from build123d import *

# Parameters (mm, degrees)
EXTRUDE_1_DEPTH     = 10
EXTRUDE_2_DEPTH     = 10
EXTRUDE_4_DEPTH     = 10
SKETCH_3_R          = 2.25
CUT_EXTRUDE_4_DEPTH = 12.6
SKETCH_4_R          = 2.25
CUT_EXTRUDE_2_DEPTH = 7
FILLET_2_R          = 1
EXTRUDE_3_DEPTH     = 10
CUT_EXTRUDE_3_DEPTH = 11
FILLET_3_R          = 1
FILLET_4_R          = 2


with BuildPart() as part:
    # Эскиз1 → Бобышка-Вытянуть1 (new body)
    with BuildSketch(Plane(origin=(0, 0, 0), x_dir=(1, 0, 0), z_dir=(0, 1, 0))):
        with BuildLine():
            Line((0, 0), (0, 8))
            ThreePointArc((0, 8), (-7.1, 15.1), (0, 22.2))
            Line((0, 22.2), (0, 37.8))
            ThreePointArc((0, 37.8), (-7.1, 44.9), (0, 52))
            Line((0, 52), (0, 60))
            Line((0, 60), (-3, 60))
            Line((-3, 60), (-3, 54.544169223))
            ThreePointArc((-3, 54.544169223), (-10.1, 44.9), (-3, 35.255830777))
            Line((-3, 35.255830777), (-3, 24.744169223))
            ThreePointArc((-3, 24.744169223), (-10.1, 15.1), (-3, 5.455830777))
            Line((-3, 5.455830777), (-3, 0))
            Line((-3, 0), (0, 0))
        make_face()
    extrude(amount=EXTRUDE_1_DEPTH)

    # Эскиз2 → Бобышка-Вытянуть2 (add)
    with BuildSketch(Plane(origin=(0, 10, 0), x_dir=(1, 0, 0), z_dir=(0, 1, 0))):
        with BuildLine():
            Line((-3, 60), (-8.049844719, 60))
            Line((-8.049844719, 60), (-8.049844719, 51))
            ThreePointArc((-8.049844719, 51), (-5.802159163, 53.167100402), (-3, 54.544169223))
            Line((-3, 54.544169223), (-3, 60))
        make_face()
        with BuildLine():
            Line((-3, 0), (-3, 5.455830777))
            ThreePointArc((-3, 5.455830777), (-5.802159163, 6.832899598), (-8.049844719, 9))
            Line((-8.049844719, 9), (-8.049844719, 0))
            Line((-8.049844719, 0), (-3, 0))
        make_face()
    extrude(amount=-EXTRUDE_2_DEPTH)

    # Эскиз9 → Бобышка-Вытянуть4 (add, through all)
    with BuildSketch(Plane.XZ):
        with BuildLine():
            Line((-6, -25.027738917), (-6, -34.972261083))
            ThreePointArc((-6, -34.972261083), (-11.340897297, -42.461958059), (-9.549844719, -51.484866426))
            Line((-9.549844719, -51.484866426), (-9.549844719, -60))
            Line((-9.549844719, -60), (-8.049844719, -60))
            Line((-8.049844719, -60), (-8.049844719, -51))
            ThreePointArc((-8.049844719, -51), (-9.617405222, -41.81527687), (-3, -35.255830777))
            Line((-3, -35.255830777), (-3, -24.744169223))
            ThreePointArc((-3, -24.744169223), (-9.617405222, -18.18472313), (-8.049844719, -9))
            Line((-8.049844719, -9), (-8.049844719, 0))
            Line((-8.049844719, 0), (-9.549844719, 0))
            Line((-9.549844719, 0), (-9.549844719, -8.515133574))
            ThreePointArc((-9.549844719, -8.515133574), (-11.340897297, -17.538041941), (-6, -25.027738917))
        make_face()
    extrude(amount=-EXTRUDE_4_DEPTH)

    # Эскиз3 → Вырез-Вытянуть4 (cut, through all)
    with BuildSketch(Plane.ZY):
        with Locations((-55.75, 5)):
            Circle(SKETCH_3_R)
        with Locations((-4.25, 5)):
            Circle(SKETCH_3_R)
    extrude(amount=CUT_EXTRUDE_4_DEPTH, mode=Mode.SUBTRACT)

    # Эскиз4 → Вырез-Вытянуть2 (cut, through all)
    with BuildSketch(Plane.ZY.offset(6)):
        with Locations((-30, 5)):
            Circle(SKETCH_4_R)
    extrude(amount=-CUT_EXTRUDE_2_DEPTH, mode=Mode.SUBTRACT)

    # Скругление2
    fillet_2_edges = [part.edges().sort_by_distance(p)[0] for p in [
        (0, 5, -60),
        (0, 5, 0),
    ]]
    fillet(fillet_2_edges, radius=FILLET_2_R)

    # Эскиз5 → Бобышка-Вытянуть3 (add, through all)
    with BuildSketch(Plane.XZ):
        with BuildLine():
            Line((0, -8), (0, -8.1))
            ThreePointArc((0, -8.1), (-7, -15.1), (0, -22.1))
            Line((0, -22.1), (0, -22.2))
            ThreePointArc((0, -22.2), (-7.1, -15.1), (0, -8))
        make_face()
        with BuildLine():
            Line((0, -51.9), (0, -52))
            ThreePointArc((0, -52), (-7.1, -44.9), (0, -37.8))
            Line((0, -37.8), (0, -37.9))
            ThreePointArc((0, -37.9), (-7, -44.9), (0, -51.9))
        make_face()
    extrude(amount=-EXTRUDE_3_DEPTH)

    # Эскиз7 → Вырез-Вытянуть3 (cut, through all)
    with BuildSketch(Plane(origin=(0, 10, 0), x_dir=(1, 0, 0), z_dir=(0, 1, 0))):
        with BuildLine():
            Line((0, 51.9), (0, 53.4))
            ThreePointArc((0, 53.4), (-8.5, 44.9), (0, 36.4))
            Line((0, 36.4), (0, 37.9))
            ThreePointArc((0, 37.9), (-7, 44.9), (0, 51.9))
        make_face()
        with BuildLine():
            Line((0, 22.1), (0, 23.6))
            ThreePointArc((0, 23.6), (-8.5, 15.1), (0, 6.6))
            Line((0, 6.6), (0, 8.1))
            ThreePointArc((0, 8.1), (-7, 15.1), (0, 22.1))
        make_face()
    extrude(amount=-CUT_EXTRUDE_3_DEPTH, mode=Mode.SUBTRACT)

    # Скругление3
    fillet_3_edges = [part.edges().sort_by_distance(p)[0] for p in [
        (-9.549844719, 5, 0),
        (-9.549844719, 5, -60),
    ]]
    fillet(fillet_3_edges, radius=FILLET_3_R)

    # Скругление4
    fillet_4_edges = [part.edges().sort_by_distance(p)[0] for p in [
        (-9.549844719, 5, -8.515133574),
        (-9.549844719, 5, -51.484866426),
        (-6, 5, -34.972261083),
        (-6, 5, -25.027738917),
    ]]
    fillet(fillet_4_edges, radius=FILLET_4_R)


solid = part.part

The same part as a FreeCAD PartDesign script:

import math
import FreeCAD as App
import Part
import Sketcher
from FreeCAD import Vector


def edges_at(feature, points):
    """Names of the edges that pass closest to the given points."""
    edges = feature.Shape.Edges
    near = lambda p: min(range(len(edges)), key=lambda i: edges[i].distToShape(Part.Vertex(*p))[0])
    return sorted({f"Edge{near(p) + 1}" for p in points})

doc = App.newDocument("Part")
body = doc.addObject("PartDesign::Body", "Body")

# Sketch on XZ plane
sketch1 = doc.addObject("Sketcher::SketchObject", "Sketch")
body.addObject(sketch1)
sketch1.AttachmentSupport = (doc.XZ_Plane, [""])
sketch1.MapMode = "FlatFace"
sketch1.addGeometry(Part.LineSegment(Vector(0, 0, 0), Vector(0, -8, 0)), False)
sketch1.addGeometry(Part.ArcOfCircle(Part.Circle(Vector(0, -15.1, 0), Vector(0, 0, 1), 7.1), math.radians(90), math.radians(270)), False)
sketch1.addGeometry(Part.LineSegment(Vector(0, -22.2, 0), Vector(0, -37.8, 0)), False)
sketch1.addGeometry(Part.ArcOfCircle(Part.Circle(Vector(0, -44.9, 0), Vector(0, 0, 1), 7.1), math.radians(90), math.radians(270)), False)
sketch1.addGeometry(Part.LineSegment(Vector(0, -52, 0), Vector(0, -60, 0)), False)
sketch1.addGeometry(Part.LineSegment(Vector(0, -60, 0), Vector(-3, -60, 0)), False)
sketch1.addGeometry(Part.LineSegment(Vector(-3, -60, 0), Vector(-3, -54.5, 0)), False)
sketch1.addGeometry(Part.ArcOfCircle(Part.Circle(Vector(0, -44.9, 0), Vector(0, 0, 1), 10.1), math.radians(107), math.radians(253)), False)
sketch1.addGeometry(Part.LineSegment(Vector(-3, -35.3, 0), Vector(-3, -24.7, 0)), False)
sketch1.addGeometry(Part.ArcOfCircle(Part.Circle(Vector(0, -15.1, 0), Vector(0, 0, 1), 10.1), math.radians(107), math.radians(253)), False)
sketch1.addGeometry(Part.LineSegment(Vector(-3, -5.5, 0), Vector(-3, 0, 0)), False)
sketch1.addGeometry(Part.LineSegment(Vector(-3, 0, 0), Vector(0, 0, 0)), False)
sketch1.addConstraint(Sketcher.Constraint("Coincident", 0, 2, 1, 1))
sketch1.addConstraint(Sketcher.Constraint("Coincident", 1, 2, 2, 1))
sketch1.addConstraint(Sketcher.Constraint("Coincident", 2, 2, 3, 1))
sketch1.addConstraint(Sketcher.Constraint("Coincident", 3, 2, 4, 1))
sketch1.addConstraint(Sketcher.Constraint("Coincident", 4, 2, 5, 1))
sketch1.addConstraint(Sketcher.Constraint("Coincident", 5, 2, 6, 1))
sketch1.addConstraint(Sketcher.Constraint("Coincident", 6, 2, 7, 2))
sketch1.addConstraint(Sketcher.Constraint("Coincident", 7, 1, 8, 1))
sketch1.addConstraint(Sketcher.Constraint("Coincident", 8, 2, 9, 2))
sketch1.addConstraint(Sketcher.Constraint("Coincident", 9, 1, 10, 1))
sketch1.addConstraint(Sketcher.Constraint("Coincident", 10, 2, 11, 1))
sketch1.addConstraint(Sketcher.Constraint("Coincident", 11, 2, 0, 1))
sketch1.addConstraint(Sketcher.Constraint("Vertical", 0))
sketch1.addConstraint(Sketcher.Constraint("Vertical", 2))
sketch1.addConstraint(Sketcher.Constraint("Vertical", 4))
sketch1.addConstraint(Sketcher.Constraint("Horizontal", 5))
sketch1.addConstraint(Sketcher.Constraint("Vertical", 6))
sketch1.addConstraint(Sketcher.Constraint("Vertical", 8))
sketch1.addConstraint(Sketcher.Constraint("Vertical", 10))
sketch1.addConstraint(Sketcher.Constraint("Horizontal", 11))
sketch1.addConstraint(Sketcher.Constraint("Coincident", 11, 2, -1, 1))
sketch1.addConstraint(Sketcher.Constraint("Coincident", 7, 3, 3, 3))
sketch1.addConstraint(Sketcher.Constraint("Coincident", 9, 3, 1, 3))
sketch1.addConstraint(Sketcher.Constraint("Equal", 1, 3))
sketch1.addConstraint(Sketcher.Constraint("Equal", 7, 9))
sketch1.addConstraint(Sketcher.Constraint("PointOnObject", 1, 3, -2))
sketch1.addConstraint(Sketcher.Constraint("PointOnObject", 3, 3, -2))
sketch1.addConstraint(Sketcher.Constraint("PointOnObject", 1, 2, -2))
sketch1.addConstraint(Sketcher.Constraint("PointOnObject", 3, 2, -2))
sketch1.addConstraint(Sketcher.Constraint("Vertical", 6, 2, 7, 1))
sketch1.addConstraint(Sketcher.Constraint("Vertical", 8, 2, 9, 1))
sketch1.addConstraint(Sketcher.Constraint("Equal", 0, 4))
sketch1.addConstraint(Sketcher.Constraint("Radius", 1, 7.1))
sketch1.addConstraint(Sketcher.Constraint("Radius", 7, 10.1))
sketch1.addConstraint(Sketcher.Constraint("DistanceX", 5, 2, 5, 1, 3.0))
sketch1.addConstraint(Sketcher.Constraint("DistanceY", 0, 2, 0, 1, 8.0))
sketch1.addConstraint(Sketcher.Constraint("DistanceY", 2, 2, 2, 1, 15.6))
pad1 = doc.addObject("PartDesign::Pad", "Pad")
body.addObject(pad1)
pad1.Profile = sketch1
pad1.Length = 10
pad1.Reversed = True

# Sketch on XZ plane
sketch2 = doc.addObject("Sketcher::SketchObject", "Sketch001")
body.addObject(sketch2)
sketch2.AttachmentSupport = (doc.XZ_Plane, [""])
sketch2.MapMode = "FlatFace"
sketch2.AttachmentOffset = App.Placement(Vector(0, 0, -10), App.Rotation())
sketch2.addGeometry(Part.LineSegment(Vector(-3, -60, 0), Vector(-8, -60, 0)), False)
sketch2.addGeometry(Part.LineSegment(Vector(-8, -60, 0), Vector(-8, -51, 0)), False)
sketch2.addGeometry(Part.ArcOfCircle(Part.Circle(Vector(0, -45, 0), Vector(0, 0, 1), 10), math.radians(-143), math.radians(-107)), False)
sketch2.addGeometry(Part.LineSegment(Vector(-3, -55, 0), Vector(-3, -60, 0)), False)
sketch2.addGeometry(Part.LineSegment(Vector(-3, 0, 0), Vector(-3, -5, 0)), False)
sketch2.addGeometry(Part.ArcOfCircle(Part.Circle(Vector(0, -15, 0), Vector(0, 0, 1), 10), math.radians(107), math.radians(143)), False)
sketch2.addGeometry(Part.LineSegment(Vector(-8, -9, 0), Vector(-8, 0, 0)), False)
sketch2.addGeometry(Part.LineSegment(Vector(-8, 0, 0), Vector(-3, 0, 0)), False)
sketch2.addConstraint(Sketcher.Constraint("Coincident", 0, 2, 1, 1))
sketch2.addConstraint(Sketcher.Constraint("Coincident", 1, 2, 2, 1))
sketch2.addConstraint(Sketcher.Constraint("Coincident", 2, 2, 3, 1))
sketch2.addConstraint(Sketcher.Constraint("Coincident", 3, 2, 0, 1))
sketch2.addConstraint(Sketcher.Constraint("Coincident", 4, 2, 5, 1))
sketch2.addConstraint(Sketcher.Constraint("Coincident", 5, 2, 6, 1))
sketch2.addConstraint(Sketcher.Constraint("Coincident", 6, 2, 7, 1))
sketch2.addConstraint(Sketcher.Constraint("Coincident", 7, 2, 4, 1))
sketch2.addConstraint(Sketcher.Constraint("Horizontal", 0))
sketch2.addConstraint(Sketcher.Constraint("Vertical", 1))
sketch2.addConstraint(Sketcher.Constraint("Vertical", 3))
sketch2.addConstraint(Sketcher.Constraint("Vertical", 4))
sketch2.addConstraint(Sketcher.Constraint("Vertical", 6))
sketch2.addConstraint(Sketcher.Constraint("Horizontal", 7))
sketch2.addConstraint(Sketcher.Constraint("Equal", 2, 5))
sketch2.addConstraint(Sketcher.Constraint("PointOnObject", 2, 3, -2))
sketch2.addConstraint(Sketcher.Constraint("PointOnObject", 5, 3, -2))
sketch2.addConstraint(Sketcher.Constraint("PointOnObject", 6, 2, -1))
sketch2.addConstraint(Sketcher.Constraint("Vertical", 3, 2, 4, 2))
sketch2.addConstraint(Sketcher.Constraint("Vertical", 1, 2, 5, 2))
sketch2.addConstraint(Sketcher.Constraint("Equal", 3, 4))
sketch2.addConstraint(Sketcher.Constraint("Radius", 2, 10.1))
sketch2.addConstraint(Sketcher.Constraint("DistanceY", 1, 1, 1, 2, 9.0))
sketch2.addConstraint(Sketcher.Constraint("DistanceY", 0, 2, -1, 1, 60.0))
sketch2.addConstraint(Sketcher.Constraint("DistanceX", 2, 2, -1, 1, 3.0))
sketch2.addConstraint(Sketcher.Constraint("DistanceY", 2, 3, -1, 1, 44.9))
pad2 = doc.addObject("PartDesign::Pad", "Pad001")
body.addObject(pad2)
pad2.Profile = sketch2
pad2.Length = 10

# Sketch on XZ plane
sketch3 = doc.addObject("Sketcher::SketchObject", "Sketch002")
body.addObject(sketch3)
sketch3.AttachmentSupport = (doc.XZ_Plane, [""])
sketch3.MapMode = "FlatFace"
sketch3.addGeometry(Part.LineSegment(Vector(-6, -25, 0), Vector(-6, -35, 0)), False)
sketch3.addGeometry(Part.ArcOfCircle(Part.Circle(Vector(0, -44.9, 0), Vector(0, 0, 1), 11.6), math.radians(121), math.radians(215)), False)
sketch3.addGeometry(Part.LineSegment(Vector(-9.5, -51.5, 0), Vector(-9.5, -60, 0)), False)
sketch3.addGeometry(Part.LineSegment(Vector(-9.5, -60, 0), Vector(-8, -60, 0)), False)
sketch3.addGeometry(Part.LineSegment(Vector(-8, -60, 0), Vector(-8, -51, 0)), False)
sketch3.addGeometry(Part.ArcOfCircle(Part.Circle(Vector(0, -44.9, 0), Vector(0, 0, 1), 10.1), math.radians(107), math.radians(217)), False)
sketch3.addGeometry(Part.LineSegment(Vector(-3, -35.3, 0), Vector(-3, -24.7, 0)), False)
sketch3.addGeometry(Part.ArcOfCircle(Part.Circle(Vector(0, -15.1, 0), Vector(0, 0, 1), 10.1), math.radians(143), math.radians(253)), False)
sketch3.addGeometry(Part.LineSegment(Vector(-8, -9, 0), Vector(-8, 0, 0)), False)
sketch3.addGeometry(Part.LineSegment(Vector(-8, 0, 0), Vector(-9.5, 0, 0)), False)
sketch3.addGeometry(Part.LineSegment(Vector(-9.5, 0, 0), Vector(-9.5, -8.5, 0)), False)
sketch3.addGeometry(Part.ArcOfCircle(Part.Circle(Vector(0, -15.1, 0), Vector(0, 0, 1), 11.6), math.radians(145), math.radians(239)), False)
sketch3.addConstraint(Sketcher.Constraint("Coincident", 0, 2, 1, 1))
sketch3.addConstraint(Sketcher.Constraint("Coincident", 1, 2, 2, 1))
sketch3.addConstraint(Sketcher.Constraint("Coincident", 2, 2, 3, 1))
sketch3.addConstraint(Sketcher.Constraint("Coincident", 3, 2, 4, 1))
sketch3.addConstraint(Sketcher.Constraint("Coincident", 4, 2, 5, 2))
sketch3.addConstraint(Sketcher.Constraint("Coincident", 5, 1, 6, 1))
sketch3.addConstraint(Sketcher.Constraint("Coincident", 6, 2, 7, 2))
sketch3.addConstraint(Sketcher.Constraint("Coincident", 7, 1, 8, 1))
sketch3.addConstraint(Sketcher.Constraint("Coincident", 8, 2, 9, 1))
sketch3.addConstraint(Sketcher.Constraint("Coincident", 9, 2, 10, 1))
sketch3.addConstraint(Sketcher.Constraint("Coincident", 10, 2, 11, 1))
sketch3.addConstraint(Sketcher.Constraint("Coincident", 11, 2, 0, 1))
sketch3.addConstraint(Sketcher.Constraint("Vertical", 0))
sketch3.addConstraint(Sketcher.Constraint("Vertical", 2))
sketch3.addConstraint(Sketcher.Constraint("Horizontal", 3))
sketch3.addConstraint(Sketcher.Constraint("Vertical", 4))
sketch3.addConstraint(Sketcher.Constraint("Vertical", 6))
sketch3.addConstraint(Sketcher.Constraint("Vertical", 8))
sketch3.addConstraint(Sketcher.Constraint("Horizontal", 9))
sketch3.addConstraint(Sketcher.Constraint("Vertical", 10))
sketch3.addConstraint(Sketcher.Constraint("Coincident", 5, 3, 1, 3))
sketch3.addConstraint(Sketcher.Constraint("Coincident", 11, 3, 7, 3))
sketch3.addConstraint(Sketcher.Constraint("Equal", 5, 7))
sketch3.addConstraint(Sketcher.Constraint("Equal", 1, 11))
sketch3.addConstraint(Sketcher.Constraint("PointOnObject", 1, 3, -2))
sketch3.addConstraint(Sketcher.Constraint("PointOnObject", 7, 3, -2))
sketch3.addConstraint(Sketcher.Constraint("PointOnObject", 8, 2, -1))
sketch3.addConstraint(Sketcher.Constraint("Vertical", 4, 2, 7, 1))
sketch3.addConstraint(Sketcher.Constraint("Vertical", 2, 2, 9, 2))
sketch3.addConstraint(Sketcher.Constraint("Equal", 4, 8))
sketch3.addConstraint(Sketcher.Constraint("Radius", 1, 11.6))
sketch3.addConstraint(Sketcher.Constraint("Radius", 5, 10.1))
sketch3.addConstraint(Sketcher.Constraint("DistanceY", 4, 1, 4, 2, 9.0))
sketch3.addConstraint(Sketcher.Constraint("DistanceX", 3, 1, 3, 2, 1.5))
sketch3.addConstraint(Sketcher.Constraint("DistanceX", 0, 2, -1, 1, 6.0))
sketch3.addConstraint(Sketcher.Constraint("DistanceY", 2, 2, -1, 1, 60.0))
sketch3.addConstraint(Sketcher.Constraint("DistanceX", 5, 1, -1, 1, 3.0))
sketch3.addConstraint(Sketcher.Constraint("DistanceY", 1, 3, -1, 1, 44.9))
pad3 = doc.addObject("PartDesign::Pad", "Pad002")
body.addObject(pad3)
pad3.Profile = sketch3
pad3.Length = 10
pad3.Reversed = True

# Sketch on YZ plane
sketch4 = doc.addObject("Sketcher::SketchObject", "Sketch003")
body.addObject(sketch4)
sketch4.AttachmentSupport = (doc.YZ_Plane, [""])
sketch4.MapMode = "FlatFace"
sketch4.addGeometry(Part.Circle(Vector(5, -55.8, 0), Vector(0, 0, 1), 2.2), False)
sketch4.addGeometry(Part.Circle(Vector(5, -4.2, 0), Vector(0, 0, 1), 2.2), False)
sketch4.addConstraint(Sketcher.Constraint("Equal", 0, 1))
sketch4.addConstraint(Sketcher.Constraint("Vertical", 0, 3, 1, 3))
sketch4.addConstraint(Sketcher.Constraint("Diameter", 0, 4.5))
sketch4.addConstraint(Sketcher.Constraint("DistanceX", -1, 1, 0, 3, 5.0))
sketch4.addConstraint(Sketcher.Constraint("DistanceY", 0, 3, 1, 3, 51.5))
sketch4.addConstraint(Sketcher.Constraint("DistanceY", 0, 3, -1, 1, 55.75))
pocket1 = doc.addObject("PartDesign::Pocket", "Pocket")
body.addObject(pocket1)
pocket1.Profile = sketch4
pocket1.Type = "ThroughAll"

# Sketch on YZ plane
sketch5 = doc.addObject("Sketcher::SketchObject", "Sketch004")
body.addObject(sketch5)
sketch5.AttachmentSupport = (doc.YZ_Plane, [""])
sketch5.MapMode = "FlatFace"
sketch5.AttachmentOffset = App.Placement(Vector(0, 0, -6), App.Rotation())
sketch5.addGeometry(Part.Circle(Vector(5, -30, 0), Vector(0, 0, 1), 2.2), False)
sketch5.addConstraint(Sketcher.Constraint("Diameter", 0, 4.5))
sketch5.addConstraint(Sketcher.Constraint("DistanceX", -1, 1, 0, 3, 5.0))
sketch5.addConstraint(Sketcher.Constraint("DistanceY", 0, 3, -1, 1, 30.0))
pocket2 = doc.addObject("PartDesign::Pocket", "Pocket001")
body.addObject(pocket2)
pocket2.Profile = sketch5
pocket2.Type = "ThroughAll"
pocket2.Reversed = True
doc.recompute()

fillet = doc.addObject("PartDesign::Fillet", "Fillet")
body.addObject(fillet)
fillet.Base = (pocket2, edges_at(pocket2, [(0, 5, -60), (0, 5, 0)]))
fillet.Radius = 1

# Sketch on XZ plane
sketch6 = doc.addObject("Sketcher::SketchObject", "Sketch005")
body.addObject(sketch6)
sketch6.AttachmentSupport = (doc.XZ_Plane, [""])
sketch6.MapMode = "FlatFace"
sketch6.addGeometry(Part.LineSegment(Vector(0, -8.1, 0), Vector(0, -8, 0)), False)
sketch6.addGeometry(Part.ArcOfCircle(Part.Circle(Vector(0, -15.1, 0), Vector(0, 0, 1), 7.1), math.radians(90), math.radians(270)), False)
sketch6.addGeometry(Part.LineSegment(Vector(0, -22.2, 0), Vector(0, -22.1, 0)), False)
sketch6.addGeometry(Part.ArcOfCircle(Part.Circle(Vector(0, -15.1, 0), Vector(0, 0, 1), 7), math.radians(90), math.radians(270)), False)
sketch6.addGeometry(Part.LineSegment(Vector(0, -52, 0), Vector(0, -51.9, 0)), False)
sketch6.addGeometry(Part.ArcOfCircle(Part.Circle(Vector(0, -44.9, 0), Vector(0, 0, 1), 7), math.radians(90), math.radians(270)), False)
sketch6.addGeometry(Part.LineSegment(Vector(0, -37.9, 0), Vector(0, -37.8, 0)), False)
sketch6.addGeometry(Part.ArcOfCircle(Part.Circle(Vector(0, -44.9, 0), Vector(0, 0, 1), 7.1), math.radians(90), math.radians(270)), False)
sketch6.addConstraint(Sketcher.Constraint("Coincident", 0, 2, 1, 1))
sketch6.addConstraint(Sketcher.Constraint("Coincident", 1, 2, 2, 1))
sketch6.addConstraint(Sketcher.Constraint("Coincident", 2, 2, 3, 2))
sketch6.addConstraint(Sketcher.Constraint("Coincident", 3, 1, 0, 1))
sketch6.addConstraint(Sketcher.Constraint("Coincident", 4, 2, 5, 2))
sketch6.addConstraint(Sketcher.Constraint("Coincident", 5, 1, 6, 1))
sketch6.addConstraint(Sketcher.Constraint("Coincident", 6, 2, 7, 1))
sketch6.addConstraint(Sketcher.Constraint("Coincident", 7, 2, 4, 1))
sketch6.addConstraint(Sketcher.Constraint("Vertical", 0))
sketch6.addConstraint(Sketcher.Constraint("Vertical", 2))
sketch6.addConstraint(Sketcher.Constraint("Vertical", 4))
sketch6.addConstraint(Sketcher.Constraint("Vertical", 6))
sketch6.addConstraint(Sketcher.Constraint("Coincident", 3, 3, 1, 3))
sketch6.addConstraint(Sketcher.Constraint("Coincident", 7, 3, 5, 3))
sketch6.addConstraint(Sketcher.Constraint("Equal", 3, 5))
sketch6.addConstraint(Sketcher.Constraint("Equal", 1, 7))
sketch6.addConstraint(Sketcher.Constraint("PointOnObject", 1, 3, -2))
sketch6.addConstraint(Sketcher.Constraint("PointOnObject", 5, 3, -2))
sketch6.addConstraint(Sketcher.Constraint("PointOnObject", 0, 2, -2))
sketch6.addConstraint(Sketcher.Constraint("PointOnObject", 1, 2, -2))
sketch6.addConstraint(Sketcher.Constraint("PointOnObject", 4, 2, -2))
sketch6.addConstraint(Sketcher.Constraint("PointOnObject", 5, 1, -2))
sketch6.addConstraint(Sketcher.Constraint("Radius", 3, 7.0))
sketch6.addConstraint(Sketcher.Constraint("Radius", 1, 7.1))
sketch6.addConstraint(Sketcher.Constraint("DistanceY", 0, 2, -1, 1, 8.0))
sketch6.addConstraint(Sketcher.Constraint("DistanceY", 7, 2, -1, 1, 52.0))
pad4 = doc.addObject("PartDesign::Pad", "Pad003")
body.addObject(pad4)
pad4.Profile = sketch6
pad4.Type = "UpToLast"
pad4.Reversed = True

# Sketch on XZ plane
sketch7 = doc.addObject("Sketcher::SketchObject", "Sketch006")
body.addObject(sketch7)
sketch7.AttachmentSupport = (doc.XZ_Plane, [""])
sketch7.MapMode = "FlatFace"
sketch7.AttachmentOffset = App.Placement(Vector(0, 0, -10), App.Rotation())
sketch7.addGeometry(Part.LineSegment(Vector(0, -51.9, 0), Vector(0, -53.4, 0)), False)
sketch7.addGeometry(Part.ArcOfCircle(Part.Circle(Vector(0, -44.9, 0), Vector(0, 0, 1), 8.5), math.radians(90), math.radians(270)), False)
sketch7.addGeometry(Part.LineSegment(Vector(0, -36.4, 0), Vector(0, -37.9, 0)), False)
sketch7.addGeometry(Part.ArcOfCircle(Part.Circle(Vector(0, -44.9, 0), Vector(0, 0, 1), 7), math.radians(90), math.radians(270)), False)
sketch7.addGeometry(Part.LineSegment(Vector(0, -22.1, 0), Vector(0, -23.6, 0)), False)
sketch7.addGeometry(Part.ArcOfCircle(Part.Circle(Vector(0, -15.1, 0), Vector(0, 0, 1), 8.5), math.radians(90), math.radians(270)), False)
sketch7.addGeometry(Part.LineSegment(Vector(0, -6.6, 0), Vector(0, -8.1, 0)), False)
sketch7.addGeometry(Part.ArcOfCircle(Part.Circle(Vector(0, -15.1, 0), Vector(0, 0, 1), 7), math.radians(90), math.radians(270)), False)
sketch7.addConstraint(Sketcher.Constraint("Coincident", 0, 2, 1, 2))
sketch7.addConstraint(Sketcher.Constraint("Coincident", 1, 1, 2, 1))
sketch7.addConstraint(Sketcher.Constraint("Coincident", 2, 2, 3, 1))
sketch7.addConstraint(Sketcher.Constraint("Coincident", 3, 2, 0, 1))
sketch7.addConstraint(Sketcher.Constraint("Coincident", 4, 2, 5, 2))
sketch7.addConstraint(Sketcher.Constraint("Coincident", 5, 1, 6, 1))
sketch7.addConstraint(Sketcher.Constraint("Coincident", 6, 2, 7, 1))
sketch7.addConstraint(Sketcher.Constraint("Coincident", 7, 2, 4, 1))
sketch7.addConstraint(Sketcher.Constraint("Vertical", 0))
sketch7.addConstraint(Sketcher.Constraint("Vertical", 2))
sketch7.addConstraint(Sketcher.Constraint("Vertical", 4))
sketch7.addConstraint(Sketcher.Constraint("Vertical", 6))
sketch7.addConstraint(Sketcher.Constraint("Coincident", 3, 3, 1, 3))
sketch7.addConstraint(Sketcher.Constraint("Coincident", 7, 3, 5, 3))
sketch7.addConstraint(Sketcher.Constraint("Equal", 1, 5))
sketch7.addConstraint(Sketcher.Constraint("Equal", 3, 7))
sketch7.addConstraint(Sketcher.Constraint("PointOnObject", 1, 3, -2))
sketch7.addConstraint(Sketcher.Constraint("PointOnObject", 5, 3, -2))
sketch7.addConstraint(Sketcher.Constraint("PointOnObject", 0, 2, -2))
sketch7.addConstraint(Sketcher.Constraint("PointOnObject", 1, 1, -2))
sketch7.addConstraint(Sketcher.Constraint("PointOnObject", 4, 2, -2))
sketch7.addConstraint(Sketcher.Constraint("PointOnObject", 5, 1, -2))
sketch7.addConstraint(Sketcher.Constraint("Radius", 3, 7.0))
sketch7.addConstraint(Sketcher.Constraint("Radius", 1, 8.5))
sketch7.addConstraint(Sketcher.Constraint("DistanceY", 1, 3, -1, 1, 44.9))
sketch7.addConstraint(Sketcher.Constraint("DistanceY", 5, 3, -1, 1, 15.1))
pocket3 = doc.addObject("PartDesign::Pocket", "Pocket002")
body.addObject(pocket3)
pocket3.Profile = sketch7
pocket3.Type = "ThroughAll"
pocket3.Reversed = True
doc.recompute()

fillet2 = doc.addObject("PartDesign::Fillet", "Fillet001")
body.addObject(fillet2)
fillet2.Base = (pocket3, edges_at(pocket3, [(-9.55, 5, 0), (-9.55, 5, -60)]))
fillet2.Radius = 1
doc.recompute()

fillet3 = doc.addObject("PartDesign::Fillet", "Fillet002")
body.addObject(fillet3)
fillet3.Base = (fillet2, edges_at(fillet2, [
    (-9.55, 5, -8.515),
    (-9.55, 5, -51.485),
    (-6, 5, -34.972),
    (-6, 5, -25.028),
]))
fillet3.Radius = 2

doc.recompute()
